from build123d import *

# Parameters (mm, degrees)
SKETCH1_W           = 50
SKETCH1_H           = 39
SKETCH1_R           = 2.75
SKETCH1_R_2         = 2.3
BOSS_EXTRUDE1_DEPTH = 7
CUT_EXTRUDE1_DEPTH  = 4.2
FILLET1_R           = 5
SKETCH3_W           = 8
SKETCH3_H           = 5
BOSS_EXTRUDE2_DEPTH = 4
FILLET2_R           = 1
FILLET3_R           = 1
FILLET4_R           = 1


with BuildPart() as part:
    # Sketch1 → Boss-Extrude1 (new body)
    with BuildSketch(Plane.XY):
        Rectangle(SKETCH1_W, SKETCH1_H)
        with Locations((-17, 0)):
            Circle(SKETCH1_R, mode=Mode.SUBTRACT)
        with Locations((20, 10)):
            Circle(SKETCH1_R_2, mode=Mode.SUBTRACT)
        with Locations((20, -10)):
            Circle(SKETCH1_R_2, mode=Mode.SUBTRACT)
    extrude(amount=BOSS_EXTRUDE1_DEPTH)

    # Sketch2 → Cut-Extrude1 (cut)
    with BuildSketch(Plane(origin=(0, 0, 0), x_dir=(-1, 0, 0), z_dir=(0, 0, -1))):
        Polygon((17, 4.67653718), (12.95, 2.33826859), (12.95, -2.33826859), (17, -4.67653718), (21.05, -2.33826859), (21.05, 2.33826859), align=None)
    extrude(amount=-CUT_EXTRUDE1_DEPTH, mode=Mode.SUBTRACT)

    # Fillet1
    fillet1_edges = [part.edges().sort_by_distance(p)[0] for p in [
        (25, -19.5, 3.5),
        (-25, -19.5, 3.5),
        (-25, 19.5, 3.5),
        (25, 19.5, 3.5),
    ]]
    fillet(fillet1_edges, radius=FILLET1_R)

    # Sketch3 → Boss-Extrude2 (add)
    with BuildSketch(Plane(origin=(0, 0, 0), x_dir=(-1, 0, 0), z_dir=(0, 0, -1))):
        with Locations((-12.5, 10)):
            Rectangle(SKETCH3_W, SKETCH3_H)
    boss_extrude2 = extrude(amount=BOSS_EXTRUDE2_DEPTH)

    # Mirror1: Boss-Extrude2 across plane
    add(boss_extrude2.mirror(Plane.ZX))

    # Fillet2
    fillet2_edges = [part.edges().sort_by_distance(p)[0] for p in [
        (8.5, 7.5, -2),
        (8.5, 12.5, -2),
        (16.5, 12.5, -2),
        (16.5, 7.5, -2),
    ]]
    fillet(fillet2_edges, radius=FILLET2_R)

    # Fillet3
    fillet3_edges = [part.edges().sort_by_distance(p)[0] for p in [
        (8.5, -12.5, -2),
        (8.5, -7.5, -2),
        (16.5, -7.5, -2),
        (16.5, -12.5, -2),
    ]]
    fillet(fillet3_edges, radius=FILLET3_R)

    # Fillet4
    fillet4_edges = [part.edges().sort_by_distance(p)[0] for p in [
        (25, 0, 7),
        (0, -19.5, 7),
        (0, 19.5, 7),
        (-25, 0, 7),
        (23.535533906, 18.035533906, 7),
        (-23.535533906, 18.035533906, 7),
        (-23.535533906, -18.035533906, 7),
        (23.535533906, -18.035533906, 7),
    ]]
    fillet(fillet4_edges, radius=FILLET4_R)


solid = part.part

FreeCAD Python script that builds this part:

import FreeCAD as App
import Part
import Sketcher

V = App.Vector
Q = App.Units.Quantity


def edges_at(feature, points):
    """Names of the edges that pass closest to the given points."""
    edges = feature.Shape.Edges
    near = lambda p: min(range(len(edges)), key=lambda i: edges[i].distToShape(Part.Vertex(*p))[0])
    return sorted({f"Edge{near(p) + 1}" for p in points})

doc = App.newDocument("Part")
body = doc.addObject("PartDesign::Body", "Body")

sketch1 = doc.addObject("Sketcher::SketchObject", "Sketch")
body.addObject(sketch1)
sketch1.AttachmentSupport = (doc.XY_Plane, [""])
sketch1.MapMode = "FlatFace"
sketch1.addGeometry([
    Part.LineSegment(V(-25, 19.5, 0), V(-25, -19.5, 0)),
    Part.LineSegment(V(-25, -19.5, 0), V(25, -19.5, 0)),
    Part.LineSegment(V(25, -19.5, 0), V(25, 19.5, 0)),
    Part.LineSegment(V(25, 19.5, 0), V(-25, 19.5, 0)),
    Part.Circle(V(20, -10, 0), V(0, 0, 1), 2.3),
    Part.Circle(V(-17, 0, 0), V(0, 0, 1), 2.75),
    Part.Circle(V(20, 10, 0), V(0, 0, 1), 2.3),
], False)
sketch1.addConstraint([
    Sketcher.Constraint("Coincident", 0, 2, 1, 1),
    Sketcher.Constraint("Coincident", 1, 2, 2, 1),
    Sketcher.Constraint("Coincident", 2, 2, 3, 1),
    Sketcher.Constraint("Coincident", 3, 2, 0, 1),
    Sketcher.Constraint("Vertical", 0),
    Sketcher.Constraint("Horizontal", 1),
    Sketcher.Constraint("Vertical", 2),
    Sketcher.Constraint("Horizontal", 3),
    Sketcher.Constraint("Equal", 4, 6),
    Sketcher.Constraint("Symmetric", 0, 2, 2, 2, -1, 1),
    Sketcher.Constraint("Symmetric", 4, 3, 6, 3, -1),
    Sketcher.Constraint("PointOnObject", 5, 3, -1),
    Sketcher.Constraint("Diameter", 4, Q("4.6 mm")),
    Sketcher.Constraint("Diameter", 5, Q("5.5 mm")),
    Sketcher.Constraint("DistanceX", 1, 1, 1, 2, Q("50 mm")),
    Sketcher.Constraint("DistanceY", 0, 2, 0, 1, Q("39 mm")),
    Sketcher.Constraint("DistanceX", -1, 1, 4, 3, Q("20 mm")),
    Sketcher.Constraint("DistanceY", 4, 3, -1, 1, Q("10 mm")),
    Sketcher.Constraint("DistanceX", 5, 3, -1, 1, Q("17 mm")),
])
pad1 = doc.addObject("PartDesign::Pad", "Pad")
body.addObject(pad1)
pad1.Profile = sketch1
pad1.Length = 7

sketch2 = doc.addObject("Sketcher::SketchObject", "Sketch001")
body.addObject(sketch2)
sketch2.AttachmentSupport = (doc.XY_Plane, [""])
sketch2.MapMode = "FlatFace"
sketch2.addGeometry([
    Part.LineSegment(V(-17, 4.676537, 0), V(-12.95, 2.338269, 0)),
    Part.LineSegment(V(-12.95, 2.338269, 0), V(-12.95, -2.338269, 0)),
    Part.LineSegment(V(-12.95, -2.338269, 0), V(-17, -4.676537, 0)),
    Part.LineSegment(V(-17, -4.676537, 0), V(-21.05, -2.338269, 0)),
    Part.LineSegment(V(-21.05, -2.338269, 0), V(-21.05, 2.338269, 0)),
    Part.LineSegment(V(-21.05, 2.338269, 0), V(-17, 4.676537, 0)),
], False)
sketch2.addConstraint([
    Sketcher.Constraint("Coincident", 0, 2, 1, 1),
    Sketcher.Constraint("Coincident", 1, 2, 2, 1),
    Sketcher.Constraint("Coincident", 2, 2, 3, 1),
    Sketcher.Constraint("Coincident", 3, 2, 4, 1),
    Sketcher.Constraint("Coincident", 4, 2, 5, 1),
    Sketcher.Constraint("Coincident", 5, 2, 0, 1),
    Sketcher.Constraint("Vertical", 1),
    Sketcher.Constraint("Vertical", 4),
    Sketcher.Constraint("Symmetric", 2, 2, 5, 2, -1),
    Sketcher.Constraint("Parallel", 0, 3),
    Sketcher.Constraint("Parallel", 2, 5),
    Sketcher.Constraint("Horizontal", 1, 2, 3, 2),
    Sketcher.Constraint("Horizontal", 0, 2, 4, 2),
    Sketcher.Constraint("Angle", 0, Q("-30 deg")),
    Sketcher.Constraint("DistanceX", 2, 2, -1, 1, Q("17 mm")),
    Sketcher.Constraint("DistanceX", 3, 2, 1, 2, Q("8.1 mm")),
    Sketcher.Constraint("DistanceY", 1, 2, 1, 1, Q("4.676537 mm")),
])
pocket1 = doc.addObject("PartDesign::Pocket", "Pocket")
body.addObject(pocket1)
pocket1.Profile = sketch2
pocket1.Length = 4.2
pocket1.Reversed = True
doc.recompute()

fillet = doc.addObject("PartDesign::Fillet", "Fillet")
body.addObject(fillet)
fillet.Base = (pocket1, edges_at(pocket1, [
    (25, -19.5, 3.5),
    (-25, -19.5, 3.5),
    (-25, 19.5, 3.5),
    (25, 19.5, 3.5),
]))
fillet.Radius = 5

sketch3 = doc.addObject("Sketcher::SketchObject", "Sketch002")
body.addObject(sketch3)
sketch3.AttachmentSupport = (doc.XY_Plane, [""])
sketch3.MapMode = "FlatFace"
sketch3.addGeometry([
    Part.LineSegment(V(16.5, 12.5, 0), V(16.5, 7.5, 0)),
    Part.LineSegment(V(16.5, 7.5, 0), V(8.5, 7.5, 0)),
    Part.LineSegment(V(8.5, 7.5, 0), V(8.5, 12.5, 0)),
    Part.LineSegment(V(8.5, 12.5, 0), V(16.5, 12.5, 0)),
], False)
sketch3.addConstraint([
    Sketcher.Constraint("Coincident", 0, 2, 1, 1),
    Sketcher.Constraint("Coincident", 1, 2, 2, 1),
    Sketcher.Constraint("Coincident", 2, 2, 3, 1),
    Sketcher.Constraint("Coincident", 3, 2, 0, 1),
    Sketcher.Constraint("Vertical", 0),
    Sketcher.Constraint("Horizontal", 1),
    Sketcher.Constraint("Vertical", 2),
    Sketcher.Constraint("Horizontal", 3),
    Sketcher.Constraint("DistanceX", 1, 2, 1, 1, Q("8 mm")),
    Sketcher.Constraint("DistanceY", 0, 2, 0, 1, Q("5 mm")),
    Sketcher.Constraint("DistanceX", -1, 1, 0, 2, Q("16.5 mm")),
    Sketcher.Constraint("DistanceY", -1, 1, 0, 2, Q("7.5 mm")),
])
pad2 = doc.addObject("PartDesign::Pad", "Pad001")
body.addObject(pad2)
pad2.Profile = sketch3
pad2.Length = 4
pad2.Reversed = True
doc.recompute()

mirrored = doc.addObject("PartDesign::Mirrored", "Mirrored")
body.addObject(mirrored)
mirrored.Originals = [pad2]
mirrored.MirrorPlane = (doc.XZ_Plane, [""])
body.Tip = mirrored
doc.recompute()

fillet2 = doc.addObject("PartDesign::Fillet", "Fillet001")
body.addObject(fillet2)
fillet2.Base = (mirrored, edges_at(mirrored, [
    (8.5, 7.5, -2),
    (8.5, 12.5, -2),
    (16.5, 12.5, -2),
    (16.5, 7.5, -2),
]))
fillet2.Radius = 1
doc.recompute()

fillet3 = doc.addObject("PartDesign::Fillet", "Fillet002")
body.addObject(fillet3)
fillet3.Base = (fillet2, edges_at(fillet2, [
    (8.5, -12.5, -2),
    (8.5, -7.5, -2),
    (16.5, -7.5, -2),
    (16.5, -12.5, -2),
]))
fillet3.Radius = 1
doc.recompute()

fillet4 = doc.addObject("PartDesign::Fillet", "Fillet003")
body.addObject(fillet4)
fillet4.Base = (fillet3, edges_at(fillet3, [
    (25, 0, 7),
    (0, -19.5, 7),
    (0, 19.5, 7),
    (-25, 0, 7),
    (23.536, 18.036, 7),
    (-23.536, 18.036, 7),
    (-23.536, -18.036, 7),
    (23.536, -18.036, 7),
]))
fillet4.Radius = 1

doc.recompute()
